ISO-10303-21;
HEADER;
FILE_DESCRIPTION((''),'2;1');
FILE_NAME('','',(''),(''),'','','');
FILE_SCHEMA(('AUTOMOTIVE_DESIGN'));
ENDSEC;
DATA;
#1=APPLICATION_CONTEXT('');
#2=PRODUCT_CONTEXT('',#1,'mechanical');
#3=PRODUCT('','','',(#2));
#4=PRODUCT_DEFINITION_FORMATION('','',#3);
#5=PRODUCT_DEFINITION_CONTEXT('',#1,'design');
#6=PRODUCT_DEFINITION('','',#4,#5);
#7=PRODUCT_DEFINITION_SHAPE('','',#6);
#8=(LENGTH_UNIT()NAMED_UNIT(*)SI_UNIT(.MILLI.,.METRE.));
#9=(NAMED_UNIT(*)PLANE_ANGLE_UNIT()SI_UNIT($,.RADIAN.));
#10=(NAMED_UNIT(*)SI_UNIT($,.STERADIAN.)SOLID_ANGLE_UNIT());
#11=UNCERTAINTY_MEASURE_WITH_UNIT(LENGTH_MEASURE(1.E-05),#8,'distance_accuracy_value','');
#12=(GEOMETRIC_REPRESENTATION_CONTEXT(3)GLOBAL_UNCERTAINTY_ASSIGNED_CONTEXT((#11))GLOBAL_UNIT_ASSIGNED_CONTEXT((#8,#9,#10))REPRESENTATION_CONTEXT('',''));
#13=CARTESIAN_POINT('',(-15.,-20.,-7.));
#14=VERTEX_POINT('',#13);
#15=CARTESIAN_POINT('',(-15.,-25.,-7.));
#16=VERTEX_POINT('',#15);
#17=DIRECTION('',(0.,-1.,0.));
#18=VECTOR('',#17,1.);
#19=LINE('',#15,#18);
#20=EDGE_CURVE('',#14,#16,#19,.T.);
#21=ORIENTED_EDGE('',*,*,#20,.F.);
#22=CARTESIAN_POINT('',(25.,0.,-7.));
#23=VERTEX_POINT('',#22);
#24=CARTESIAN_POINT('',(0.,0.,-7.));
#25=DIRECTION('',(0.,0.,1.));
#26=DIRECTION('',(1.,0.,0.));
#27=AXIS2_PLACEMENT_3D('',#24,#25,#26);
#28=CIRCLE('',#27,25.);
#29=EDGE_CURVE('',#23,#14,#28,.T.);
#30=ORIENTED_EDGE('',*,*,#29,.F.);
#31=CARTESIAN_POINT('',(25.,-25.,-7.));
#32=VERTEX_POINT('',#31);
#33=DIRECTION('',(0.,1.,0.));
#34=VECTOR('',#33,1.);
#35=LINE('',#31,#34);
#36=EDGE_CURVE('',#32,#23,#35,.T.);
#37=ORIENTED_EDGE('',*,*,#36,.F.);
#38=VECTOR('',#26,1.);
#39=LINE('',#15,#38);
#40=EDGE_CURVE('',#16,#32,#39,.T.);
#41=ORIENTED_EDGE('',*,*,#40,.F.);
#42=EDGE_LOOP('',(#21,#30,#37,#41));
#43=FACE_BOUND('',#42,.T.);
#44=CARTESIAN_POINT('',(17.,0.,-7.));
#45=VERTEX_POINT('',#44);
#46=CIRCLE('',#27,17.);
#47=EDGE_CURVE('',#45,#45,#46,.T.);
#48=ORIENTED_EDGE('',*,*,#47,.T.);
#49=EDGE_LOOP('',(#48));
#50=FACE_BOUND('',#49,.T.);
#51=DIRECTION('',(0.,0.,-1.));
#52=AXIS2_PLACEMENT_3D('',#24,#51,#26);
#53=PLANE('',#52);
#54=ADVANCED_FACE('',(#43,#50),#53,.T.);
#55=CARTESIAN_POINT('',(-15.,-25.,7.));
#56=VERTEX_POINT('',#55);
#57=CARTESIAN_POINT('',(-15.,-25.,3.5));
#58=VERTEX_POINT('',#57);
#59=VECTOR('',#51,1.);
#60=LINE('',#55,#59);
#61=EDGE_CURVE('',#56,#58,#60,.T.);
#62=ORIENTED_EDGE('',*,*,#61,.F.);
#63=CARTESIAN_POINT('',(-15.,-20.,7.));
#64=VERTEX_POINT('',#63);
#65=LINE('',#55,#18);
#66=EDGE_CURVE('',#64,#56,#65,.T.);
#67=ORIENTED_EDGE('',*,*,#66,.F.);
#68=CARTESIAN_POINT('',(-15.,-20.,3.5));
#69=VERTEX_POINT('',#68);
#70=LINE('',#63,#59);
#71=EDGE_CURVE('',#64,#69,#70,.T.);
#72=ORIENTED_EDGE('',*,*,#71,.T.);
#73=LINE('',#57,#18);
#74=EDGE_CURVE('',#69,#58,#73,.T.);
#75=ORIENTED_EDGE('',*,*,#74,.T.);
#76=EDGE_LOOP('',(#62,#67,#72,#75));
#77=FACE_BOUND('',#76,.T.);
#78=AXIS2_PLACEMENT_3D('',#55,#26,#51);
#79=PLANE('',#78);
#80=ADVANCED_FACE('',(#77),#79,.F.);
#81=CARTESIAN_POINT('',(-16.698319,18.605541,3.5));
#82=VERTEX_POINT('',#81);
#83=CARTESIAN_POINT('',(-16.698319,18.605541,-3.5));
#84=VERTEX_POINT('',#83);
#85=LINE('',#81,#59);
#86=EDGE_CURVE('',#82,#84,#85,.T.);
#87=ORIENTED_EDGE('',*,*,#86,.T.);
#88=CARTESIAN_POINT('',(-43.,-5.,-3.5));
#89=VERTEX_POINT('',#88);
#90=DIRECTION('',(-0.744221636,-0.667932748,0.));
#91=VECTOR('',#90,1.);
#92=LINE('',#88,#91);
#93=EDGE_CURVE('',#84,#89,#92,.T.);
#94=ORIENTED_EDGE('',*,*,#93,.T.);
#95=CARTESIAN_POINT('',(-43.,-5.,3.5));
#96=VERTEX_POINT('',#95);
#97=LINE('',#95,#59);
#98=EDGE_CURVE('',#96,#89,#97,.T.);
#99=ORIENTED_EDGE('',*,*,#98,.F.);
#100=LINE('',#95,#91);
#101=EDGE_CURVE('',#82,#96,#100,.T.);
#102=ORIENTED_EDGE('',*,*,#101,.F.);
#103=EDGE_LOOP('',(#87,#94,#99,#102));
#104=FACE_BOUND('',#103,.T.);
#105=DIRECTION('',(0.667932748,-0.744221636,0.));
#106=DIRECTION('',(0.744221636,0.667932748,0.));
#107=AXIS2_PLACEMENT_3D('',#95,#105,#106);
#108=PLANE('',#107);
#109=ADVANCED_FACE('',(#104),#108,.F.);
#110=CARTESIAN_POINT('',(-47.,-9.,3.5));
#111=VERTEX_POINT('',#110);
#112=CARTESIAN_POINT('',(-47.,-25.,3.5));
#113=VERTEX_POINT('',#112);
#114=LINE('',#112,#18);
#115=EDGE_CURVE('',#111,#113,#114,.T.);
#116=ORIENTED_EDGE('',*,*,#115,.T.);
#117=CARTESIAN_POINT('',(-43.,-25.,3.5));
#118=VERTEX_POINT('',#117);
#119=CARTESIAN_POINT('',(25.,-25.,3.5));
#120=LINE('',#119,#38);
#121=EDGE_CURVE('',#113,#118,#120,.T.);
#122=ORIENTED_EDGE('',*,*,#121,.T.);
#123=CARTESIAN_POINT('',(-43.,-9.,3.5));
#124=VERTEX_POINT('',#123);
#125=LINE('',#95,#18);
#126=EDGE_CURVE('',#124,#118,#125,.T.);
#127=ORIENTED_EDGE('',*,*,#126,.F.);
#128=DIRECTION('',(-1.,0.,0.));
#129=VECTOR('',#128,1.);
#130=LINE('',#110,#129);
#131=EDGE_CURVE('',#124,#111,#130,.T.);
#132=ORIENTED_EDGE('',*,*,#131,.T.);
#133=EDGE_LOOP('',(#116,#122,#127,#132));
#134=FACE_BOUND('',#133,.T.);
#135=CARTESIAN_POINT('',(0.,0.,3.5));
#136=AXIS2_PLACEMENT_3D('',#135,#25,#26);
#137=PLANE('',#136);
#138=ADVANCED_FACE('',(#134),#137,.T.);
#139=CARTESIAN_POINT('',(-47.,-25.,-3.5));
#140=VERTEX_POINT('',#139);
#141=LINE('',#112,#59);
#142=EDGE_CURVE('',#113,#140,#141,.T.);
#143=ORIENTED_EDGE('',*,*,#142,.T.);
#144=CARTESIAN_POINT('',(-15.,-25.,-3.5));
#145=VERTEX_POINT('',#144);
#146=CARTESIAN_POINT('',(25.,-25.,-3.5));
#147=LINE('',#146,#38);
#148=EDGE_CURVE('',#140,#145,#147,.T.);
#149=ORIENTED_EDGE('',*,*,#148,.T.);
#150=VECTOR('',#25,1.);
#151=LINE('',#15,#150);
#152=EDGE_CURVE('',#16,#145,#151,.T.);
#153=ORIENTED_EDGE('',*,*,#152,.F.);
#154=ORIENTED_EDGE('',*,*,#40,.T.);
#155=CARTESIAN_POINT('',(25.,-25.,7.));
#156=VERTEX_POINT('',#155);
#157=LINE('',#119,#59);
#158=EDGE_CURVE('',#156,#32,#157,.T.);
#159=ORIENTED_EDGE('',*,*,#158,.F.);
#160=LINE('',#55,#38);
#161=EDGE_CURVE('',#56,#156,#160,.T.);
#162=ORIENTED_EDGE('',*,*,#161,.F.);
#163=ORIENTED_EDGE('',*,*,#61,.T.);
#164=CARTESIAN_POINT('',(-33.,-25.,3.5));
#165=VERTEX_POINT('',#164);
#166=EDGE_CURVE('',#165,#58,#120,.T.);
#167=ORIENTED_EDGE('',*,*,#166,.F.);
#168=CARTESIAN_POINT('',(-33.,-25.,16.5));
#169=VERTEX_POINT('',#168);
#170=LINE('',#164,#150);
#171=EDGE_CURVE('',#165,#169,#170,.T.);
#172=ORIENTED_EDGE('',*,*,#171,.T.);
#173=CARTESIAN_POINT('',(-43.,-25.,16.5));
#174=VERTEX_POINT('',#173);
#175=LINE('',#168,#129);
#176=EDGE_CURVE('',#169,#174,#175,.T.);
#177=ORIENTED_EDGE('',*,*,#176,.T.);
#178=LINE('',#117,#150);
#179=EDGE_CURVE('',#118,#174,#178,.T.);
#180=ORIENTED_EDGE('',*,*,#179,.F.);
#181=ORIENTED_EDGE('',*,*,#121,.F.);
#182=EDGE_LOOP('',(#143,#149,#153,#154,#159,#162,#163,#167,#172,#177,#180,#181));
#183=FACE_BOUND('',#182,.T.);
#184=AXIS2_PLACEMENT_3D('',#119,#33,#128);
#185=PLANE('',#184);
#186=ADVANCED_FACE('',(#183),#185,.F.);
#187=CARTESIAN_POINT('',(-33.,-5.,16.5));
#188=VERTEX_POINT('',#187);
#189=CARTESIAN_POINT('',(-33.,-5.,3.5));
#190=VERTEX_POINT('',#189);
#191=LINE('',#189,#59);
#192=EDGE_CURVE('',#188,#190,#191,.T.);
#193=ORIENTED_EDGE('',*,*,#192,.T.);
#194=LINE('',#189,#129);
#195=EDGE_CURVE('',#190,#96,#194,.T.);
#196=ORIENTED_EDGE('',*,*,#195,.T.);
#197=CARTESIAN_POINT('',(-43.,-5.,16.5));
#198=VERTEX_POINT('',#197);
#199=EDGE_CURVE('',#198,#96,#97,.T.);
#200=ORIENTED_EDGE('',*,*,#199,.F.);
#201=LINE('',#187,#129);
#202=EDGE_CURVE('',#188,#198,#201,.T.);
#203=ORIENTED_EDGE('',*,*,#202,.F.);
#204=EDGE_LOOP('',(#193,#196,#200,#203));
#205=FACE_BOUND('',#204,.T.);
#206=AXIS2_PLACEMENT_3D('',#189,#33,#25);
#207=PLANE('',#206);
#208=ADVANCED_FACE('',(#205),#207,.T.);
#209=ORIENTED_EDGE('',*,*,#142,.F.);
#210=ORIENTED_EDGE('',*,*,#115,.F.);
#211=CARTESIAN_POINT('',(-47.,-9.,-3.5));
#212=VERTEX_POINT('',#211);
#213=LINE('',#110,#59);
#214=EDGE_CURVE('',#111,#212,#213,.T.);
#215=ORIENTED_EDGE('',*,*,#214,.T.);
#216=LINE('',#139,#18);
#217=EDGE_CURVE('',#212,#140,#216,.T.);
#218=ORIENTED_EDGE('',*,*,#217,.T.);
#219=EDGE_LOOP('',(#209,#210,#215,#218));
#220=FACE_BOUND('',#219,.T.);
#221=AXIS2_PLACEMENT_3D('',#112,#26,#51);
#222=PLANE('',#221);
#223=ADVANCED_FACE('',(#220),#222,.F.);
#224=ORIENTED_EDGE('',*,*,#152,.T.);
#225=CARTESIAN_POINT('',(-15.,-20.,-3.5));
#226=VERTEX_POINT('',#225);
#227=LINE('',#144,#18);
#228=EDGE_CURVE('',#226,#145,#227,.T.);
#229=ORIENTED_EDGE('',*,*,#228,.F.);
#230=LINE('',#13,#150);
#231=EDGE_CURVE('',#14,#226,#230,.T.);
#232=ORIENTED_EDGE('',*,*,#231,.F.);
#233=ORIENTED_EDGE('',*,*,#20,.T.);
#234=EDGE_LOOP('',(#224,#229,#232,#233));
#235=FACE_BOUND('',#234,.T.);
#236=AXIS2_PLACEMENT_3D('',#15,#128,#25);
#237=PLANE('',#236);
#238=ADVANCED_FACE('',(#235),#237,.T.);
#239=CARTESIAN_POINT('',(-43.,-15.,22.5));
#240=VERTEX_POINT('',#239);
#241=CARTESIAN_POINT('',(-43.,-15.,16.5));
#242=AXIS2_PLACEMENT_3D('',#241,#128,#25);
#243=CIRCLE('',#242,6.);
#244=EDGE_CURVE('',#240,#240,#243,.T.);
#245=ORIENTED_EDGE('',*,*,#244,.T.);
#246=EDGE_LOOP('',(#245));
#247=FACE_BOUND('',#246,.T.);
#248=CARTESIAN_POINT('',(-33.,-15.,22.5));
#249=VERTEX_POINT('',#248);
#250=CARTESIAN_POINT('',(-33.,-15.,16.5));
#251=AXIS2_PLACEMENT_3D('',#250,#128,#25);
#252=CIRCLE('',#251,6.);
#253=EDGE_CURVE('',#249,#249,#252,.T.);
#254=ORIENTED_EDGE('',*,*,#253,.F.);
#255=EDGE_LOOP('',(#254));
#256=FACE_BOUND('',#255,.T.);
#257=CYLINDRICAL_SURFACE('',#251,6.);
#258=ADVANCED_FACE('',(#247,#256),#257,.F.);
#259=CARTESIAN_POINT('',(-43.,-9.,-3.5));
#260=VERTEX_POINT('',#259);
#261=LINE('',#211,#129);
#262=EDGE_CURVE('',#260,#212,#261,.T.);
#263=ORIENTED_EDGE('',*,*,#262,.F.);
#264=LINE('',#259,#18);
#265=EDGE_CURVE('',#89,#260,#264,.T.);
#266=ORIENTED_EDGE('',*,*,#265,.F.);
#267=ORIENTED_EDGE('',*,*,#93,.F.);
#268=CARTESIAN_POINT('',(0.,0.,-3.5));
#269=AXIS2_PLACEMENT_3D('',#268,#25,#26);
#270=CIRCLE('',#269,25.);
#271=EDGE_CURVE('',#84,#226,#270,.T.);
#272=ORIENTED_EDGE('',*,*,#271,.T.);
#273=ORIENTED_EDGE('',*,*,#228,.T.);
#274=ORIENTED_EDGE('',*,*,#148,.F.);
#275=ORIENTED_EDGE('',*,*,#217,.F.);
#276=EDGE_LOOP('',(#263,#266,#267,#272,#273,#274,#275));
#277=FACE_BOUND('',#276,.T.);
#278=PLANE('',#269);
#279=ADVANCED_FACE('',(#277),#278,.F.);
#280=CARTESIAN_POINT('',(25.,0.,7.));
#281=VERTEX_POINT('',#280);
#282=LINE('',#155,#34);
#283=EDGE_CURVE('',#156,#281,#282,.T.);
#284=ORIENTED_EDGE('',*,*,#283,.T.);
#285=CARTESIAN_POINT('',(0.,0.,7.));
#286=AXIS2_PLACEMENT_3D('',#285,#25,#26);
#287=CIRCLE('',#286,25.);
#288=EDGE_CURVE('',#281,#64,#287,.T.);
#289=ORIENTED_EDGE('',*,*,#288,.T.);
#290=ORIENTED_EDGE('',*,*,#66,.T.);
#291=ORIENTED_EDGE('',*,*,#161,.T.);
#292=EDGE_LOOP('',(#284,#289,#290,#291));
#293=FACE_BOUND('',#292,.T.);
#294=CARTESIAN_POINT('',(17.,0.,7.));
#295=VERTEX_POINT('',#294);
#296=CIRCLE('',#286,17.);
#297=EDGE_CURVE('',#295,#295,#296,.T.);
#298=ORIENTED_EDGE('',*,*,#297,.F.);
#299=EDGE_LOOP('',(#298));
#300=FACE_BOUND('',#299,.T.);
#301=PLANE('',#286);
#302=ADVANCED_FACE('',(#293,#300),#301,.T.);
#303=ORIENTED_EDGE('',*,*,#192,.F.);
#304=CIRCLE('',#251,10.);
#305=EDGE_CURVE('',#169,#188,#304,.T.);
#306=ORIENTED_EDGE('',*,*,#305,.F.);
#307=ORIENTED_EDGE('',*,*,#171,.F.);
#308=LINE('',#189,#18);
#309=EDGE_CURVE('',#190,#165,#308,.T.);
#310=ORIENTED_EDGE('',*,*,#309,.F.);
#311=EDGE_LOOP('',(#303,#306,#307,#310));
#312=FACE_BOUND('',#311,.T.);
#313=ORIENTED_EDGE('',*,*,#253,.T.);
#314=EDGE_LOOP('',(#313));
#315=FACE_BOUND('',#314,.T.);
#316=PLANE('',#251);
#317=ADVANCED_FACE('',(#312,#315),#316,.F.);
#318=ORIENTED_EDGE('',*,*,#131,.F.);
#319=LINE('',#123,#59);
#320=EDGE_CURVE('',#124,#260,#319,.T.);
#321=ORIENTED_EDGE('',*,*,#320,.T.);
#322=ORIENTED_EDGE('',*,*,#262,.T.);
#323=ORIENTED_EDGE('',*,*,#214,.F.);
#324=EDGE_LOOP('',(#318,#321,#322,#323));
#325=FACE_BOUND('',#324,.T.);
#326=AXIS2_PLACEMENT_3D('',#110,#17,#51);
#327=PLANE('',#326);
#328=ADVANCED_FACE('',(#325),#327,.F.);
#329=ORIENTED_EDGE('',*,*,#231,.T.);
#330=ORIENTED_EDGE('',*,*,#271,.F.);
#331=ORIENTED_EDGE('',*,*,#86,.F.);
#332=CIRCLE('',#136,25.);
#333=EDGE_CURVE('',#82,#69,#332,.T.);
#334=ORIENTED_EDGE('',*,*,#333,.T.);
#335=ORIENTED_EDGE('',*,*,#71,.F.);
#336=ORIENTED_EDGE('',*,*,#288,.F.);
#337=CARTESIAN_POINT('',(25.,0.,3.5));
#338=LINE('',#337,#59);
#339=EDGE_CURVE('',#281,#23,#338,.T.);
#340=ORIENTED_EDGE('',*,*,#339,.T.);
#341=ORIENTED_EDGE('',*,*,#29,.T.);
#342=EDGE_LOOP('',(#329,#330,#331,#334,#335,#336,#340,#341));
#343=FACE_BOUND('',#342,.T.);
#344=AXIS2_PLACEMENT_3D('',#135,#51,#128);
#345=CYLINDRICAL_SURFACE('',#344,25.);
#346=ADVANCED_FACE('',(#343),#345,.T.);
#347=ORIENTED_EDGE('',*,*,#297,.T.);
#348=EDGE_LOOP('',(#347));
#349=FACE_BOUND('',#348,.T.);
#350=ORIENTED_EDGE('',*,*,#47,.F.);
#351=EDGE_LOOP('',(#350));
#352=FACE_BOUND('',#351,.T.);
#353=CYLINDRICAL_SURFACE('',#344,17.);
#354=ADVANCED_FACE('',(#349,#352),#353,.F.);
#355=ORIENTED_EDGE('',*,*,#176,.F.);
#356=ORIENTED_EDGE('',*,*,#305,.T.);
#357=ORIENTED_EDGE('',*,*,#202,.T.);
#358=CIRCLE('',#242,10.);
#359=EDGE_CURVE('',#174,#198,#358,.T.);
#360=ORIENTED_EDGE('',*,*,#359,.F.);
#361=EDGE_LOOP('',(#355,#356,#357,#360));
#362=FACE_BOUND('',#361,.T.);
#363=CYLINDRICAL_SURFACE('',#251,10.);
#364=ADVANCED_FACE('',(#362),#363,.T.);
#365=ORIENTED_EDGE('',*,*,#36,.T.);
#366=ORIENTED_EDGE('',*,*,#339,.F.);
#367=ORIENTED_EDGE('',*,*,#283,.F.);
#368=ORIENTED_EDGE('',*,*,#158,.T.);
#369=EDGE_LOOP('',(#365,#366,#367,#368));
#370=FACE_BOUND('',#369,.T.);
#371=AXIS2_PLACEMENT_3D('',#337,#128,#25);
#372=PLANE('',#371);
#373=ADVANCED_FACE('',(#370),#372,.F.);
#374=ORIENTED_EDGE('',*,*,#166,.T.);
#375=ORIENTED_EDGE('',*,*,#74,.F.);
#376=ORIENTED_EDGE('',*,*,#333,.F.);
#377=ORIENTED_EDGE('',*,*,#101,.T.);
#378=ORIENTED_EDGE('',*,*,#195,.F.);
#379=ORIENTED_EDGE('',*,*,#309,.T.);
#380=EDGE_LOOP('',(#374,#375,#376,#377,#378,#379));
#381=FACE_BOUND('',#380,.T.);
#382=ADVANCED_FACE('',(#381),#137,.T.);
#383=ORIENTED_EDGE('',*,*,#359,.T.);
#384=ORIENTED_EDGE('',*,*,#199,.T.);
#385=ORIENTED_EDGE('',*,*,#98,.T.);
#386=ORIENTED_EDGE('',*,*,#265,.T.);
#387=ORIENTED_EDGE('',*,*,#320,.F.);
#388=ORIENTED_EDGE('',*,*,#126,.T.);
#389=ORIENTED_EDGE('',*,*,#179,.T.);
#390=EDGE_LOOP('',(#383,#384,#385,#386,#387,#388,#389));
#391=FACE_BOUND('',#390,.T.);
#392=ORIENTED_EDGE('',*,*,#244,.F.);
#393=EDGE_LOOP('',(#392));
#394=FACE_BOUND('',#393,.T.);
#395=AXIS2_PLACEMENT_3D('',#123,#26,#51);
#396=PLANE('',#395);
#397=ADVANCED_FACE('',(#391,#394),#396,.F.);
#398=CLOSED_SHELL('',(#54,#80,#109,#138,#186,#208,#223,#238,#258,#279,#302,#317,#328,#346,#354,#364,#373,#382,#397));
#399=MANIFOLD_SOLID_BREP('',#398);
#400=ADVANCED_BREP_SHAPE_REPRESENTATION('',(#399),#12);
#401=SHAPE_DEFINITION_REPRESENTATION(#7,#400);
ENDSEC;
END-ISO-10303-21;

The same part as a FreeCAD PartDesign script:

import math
import FreeCAD as App
import Part
import Sketcher
from FreeCAD import Vector
Q = App.Units.Quantity

doc = App.newDocument("Part")
body = doc.addObject("PartDesign::Body", "Body")

# Sketch on XY plane
sketch1 = doc.addObject("Sketcher::SketchObject", "Sketch")
body.addObject(sketch1)
sketch1.AttachmentSupport = (doc.XY_Plane, [""])
sketch1.MapMode = "FlatFace"
sketch1.addGeometry([
    Part.LineSegment(Vector(25, -25, 0), Vector(25, 0, 0)),  # 0
    Part.ArcOfCircle(Part.Circle(Vector(0, 0, 0), Vector(0, 0, 1), 25), math.radians(0), math.radians(132)),  # 1
    Part.LineSegment(Vector(-16.7, 18.6, 0), Vector(-43, -5, 0)),  # 2
    Part.LineSegment(Vector(-43, -5, 0), Vector(-43, -9, 0)),  # 3
    Part.LineSegment(Vector(-43, -9, 0), Vector(-47, -9, 0)),  # 4
    Part.LineSegment(Vector(-47, -9, 0), Vector(-47, -25, 0)),  # 5
    Part.LineSegment(Vector(-47, -25, 0), Vector(25, -25, 0)),  # 6
    Part.Circle(Vector(0, 0, 0), Vector(0, 0, 1), 17),  # 7
], False)
sketch1.addConstraint([
    Sketcher.Constraint("Tangent", 0, 2, 1, 1),
    Sketcher.Constraint("Tangent", 1, 2, 2, 1),
    Sketcher.Constraint("Coincident", 2, 2, 3, 1),
    Sketcher.Constraint("Coincident", 3, 2, 4, 1),
    Sketcher.Constraint("Coincident", 4, 2, 5, 1),
    Sketcher.Constraint("Coincident", 5, 2, 6, 1),
    Sketcher.Constraint("Coincident", 6, 2, 0, 1),
    Sketcher.Constraint("Vertical", 0),
    Sketcher.Constraint("Vertical", 3),
    Sketcher.Constraint("Horizontal", 4),
    Sketcher.Constraint("Vertical", 5),
    Sketcher.Constraint("Horizontal", 6),
    Sketcher.Constraint("Coincident", 1, 3, -1, 1),
    Sketcher.Constraint("Coincident", 7, 3, -1, 1),
    Sketcher.Constraint("Equal", 4, 3),
    Sketcher.Constraint("Diameter", 7, Q("34 mm")),
    Sketcher.Constraint("Radius", 1, Q("25 mm")),
    Sketcher.Constraint("DistanceX", 4, 2, 4, 1, Q("4 mm")),
    Sketcher.Constraint("DistanceX", 6, 1, 6, 2, Q("72 mm")),
    Sketcher.Constraint("DistanceY", 0, 1, 0, 2, Q("25 mm")),
    Sketcher.Constraint("DistanceY", 5, 2, 5, 1, Q("16 mm")),
])
pad1 = doc.addObject("PartDesign::Pad", "Pad")
body.addObject(pad1)
pad1.Profile = sketch1
pad1.Length = 7
pad1.Midplane = True

# Sketch on XY plane
sketch2 = doc.addObject("Sketcher::SketchObject", "Sketch001")
body.addObject(sketch2)
sketch2.AttachmentSupport = (doc.XY_Plane, [""])
sketch2.MapMode = "FlatFace"
sketch2.AttachmentOffset = App.Placement(Vector(0, 0, 3.5), App.Rotation())
sketch2.addGeometry([
    Part.LineSegment(Vector(25, -25, 0), Vector(25, 0, 0)),  # 0
    Part.ArcOfCircle(Part.Circle(Vector(0, 0, 0), Vector(0, 0, 1), 25), math.radians(0), math.radians(233)),  # 1
    Part.LineSegment(Vector(-15, -20, 0), Vector(-15, -25, 0)),  # 2
    Part.LineSegment(Vector(-15, -25, 0), Vector(25, -25, 0)),  # 3
    Part.Circle(Vector(0, 0, 0), Vector(0, 0, 1), 17),  # 4
], False)
sketch2.addConstraint([
    Sketcher.Constraint("Tangent", 0, 2, 1, 1),
    Sketcher.Constraint("Coincident", 1, 2, 2, 1),
    Sketcher.Constraint("Coincident", 2, 2, 3, 1),
    Sketcher.Constraint("Coincident", 3, 2, 0, 1),
    Sketcher.Constraint("Vertical", 0),
    Sketcher.Constraint("Vertical", 2),
    Sketcher.Constraint("Horizontal", 3),
    Sketcher.Constraint("Coincident", 1, 3, -1, 1),
    Sketcher.Constraint("Coincident", 4, 3, -1, 1),
    Sketcher.Constraint("Diameter", 4, Q("34 mm")),
    Sketcher.Constraint("Radius", 1, Q("25 mm")),
    Sketcher.Constraint("DistanceX", 3, 1, 3, 2, Q("40 mm")),
    Sketcher.Constraint("DistanceY", 0, 1, 0, 2, Q("25 mm")),
])
pad2 = doc.addObject("PartDesign::Pad", "Pad001")
body.addObject(pad2)
pad2.Profile = sketch2
pad2.Length = 3.5
doc.recompute()

mirrored = doc.addObject("PartDesign::Mirrored", "Mirrored")
body.addObject(mirrored)
mirrored.Originals = [pad2]
mirrored.MirrorPlane = (doc.XY_Plane, [""])
body.Tip = mirrored

# Sketch on YZ plane
sketch3 = doc.addObject("Sketcher::SketchObject", "Sketch002")
body.addObject(sketch3)
sketch3.AttachmentSupport = (doc.YZ_Plane, [""])
sketch3.MapMode = "FlatFace"
sketch3.AttachmentOffset = App.Placement(Vector(0, 0, -43), App.Rotation())
sketch3.addGeometry([
    Part.LineSegment(Vector(-5, 16, 0), Vector(-5, 4, 0)),  # 0
    Part.LineSegment(Vector(-5, 4, 0), Vector(-25, 4, 0)),  # 1
    Part.LineSegment(Vector(-25, 4, 0), Vector(-25, 16, 0)),  # 2
    Part.ArcOfCircle(Part.Circle(Vector(-15, 16, 0), Vector(0, 0, 1), 10), math.radians(0), math.radians(180)),  # 3
    Part.Circle(Vector(-15, 16, 0), Vector(0, 0, 1), 6),  # 4
], False)
sketch3.addConstraint([
    Sketcher.Constraint("Coincident", 0, 2, 1, 1),
    Sketcher.Constraint("Coincident", 1, 2, 2, 1),
    Sketcher.Constraint("Tangent", 2, 2, 3, 2),
    Sketcher.Constraint("Tangent", 3, 1, 0, 1),
    Sketcher.Constraint("Vertical", 0),
    Sketcher.Constraint("Horizontal", 1),
    Sketcher.Constraint("Vertical", 2),
    Sketcher.Constraint("Coincident", 4, 3, 3, 3),
    Sketcher.Constraint("Diameter", 4, Q("12 mm")),
    Sketcher.Constraint("Radius", 3, Q("10 mm")),
    Sketcher.Constraint("DistanceY", 0, 2, 0, 1, Q("13 mm")),
    Sketcher.Constraint("DistanceX", 3, 3, -1, 1, Q("15 mm")),
    Sketcher.Constraint("DistanceY", -1, 1, 3, 3, Q("16.5 mm")),
])
pad3 = doc.addObject("PartDesign::Pad", "Pad002")
body.addObject(pad3)
pad3.Profile = sketch3
pad3.Length = 10

doc.recompute()
